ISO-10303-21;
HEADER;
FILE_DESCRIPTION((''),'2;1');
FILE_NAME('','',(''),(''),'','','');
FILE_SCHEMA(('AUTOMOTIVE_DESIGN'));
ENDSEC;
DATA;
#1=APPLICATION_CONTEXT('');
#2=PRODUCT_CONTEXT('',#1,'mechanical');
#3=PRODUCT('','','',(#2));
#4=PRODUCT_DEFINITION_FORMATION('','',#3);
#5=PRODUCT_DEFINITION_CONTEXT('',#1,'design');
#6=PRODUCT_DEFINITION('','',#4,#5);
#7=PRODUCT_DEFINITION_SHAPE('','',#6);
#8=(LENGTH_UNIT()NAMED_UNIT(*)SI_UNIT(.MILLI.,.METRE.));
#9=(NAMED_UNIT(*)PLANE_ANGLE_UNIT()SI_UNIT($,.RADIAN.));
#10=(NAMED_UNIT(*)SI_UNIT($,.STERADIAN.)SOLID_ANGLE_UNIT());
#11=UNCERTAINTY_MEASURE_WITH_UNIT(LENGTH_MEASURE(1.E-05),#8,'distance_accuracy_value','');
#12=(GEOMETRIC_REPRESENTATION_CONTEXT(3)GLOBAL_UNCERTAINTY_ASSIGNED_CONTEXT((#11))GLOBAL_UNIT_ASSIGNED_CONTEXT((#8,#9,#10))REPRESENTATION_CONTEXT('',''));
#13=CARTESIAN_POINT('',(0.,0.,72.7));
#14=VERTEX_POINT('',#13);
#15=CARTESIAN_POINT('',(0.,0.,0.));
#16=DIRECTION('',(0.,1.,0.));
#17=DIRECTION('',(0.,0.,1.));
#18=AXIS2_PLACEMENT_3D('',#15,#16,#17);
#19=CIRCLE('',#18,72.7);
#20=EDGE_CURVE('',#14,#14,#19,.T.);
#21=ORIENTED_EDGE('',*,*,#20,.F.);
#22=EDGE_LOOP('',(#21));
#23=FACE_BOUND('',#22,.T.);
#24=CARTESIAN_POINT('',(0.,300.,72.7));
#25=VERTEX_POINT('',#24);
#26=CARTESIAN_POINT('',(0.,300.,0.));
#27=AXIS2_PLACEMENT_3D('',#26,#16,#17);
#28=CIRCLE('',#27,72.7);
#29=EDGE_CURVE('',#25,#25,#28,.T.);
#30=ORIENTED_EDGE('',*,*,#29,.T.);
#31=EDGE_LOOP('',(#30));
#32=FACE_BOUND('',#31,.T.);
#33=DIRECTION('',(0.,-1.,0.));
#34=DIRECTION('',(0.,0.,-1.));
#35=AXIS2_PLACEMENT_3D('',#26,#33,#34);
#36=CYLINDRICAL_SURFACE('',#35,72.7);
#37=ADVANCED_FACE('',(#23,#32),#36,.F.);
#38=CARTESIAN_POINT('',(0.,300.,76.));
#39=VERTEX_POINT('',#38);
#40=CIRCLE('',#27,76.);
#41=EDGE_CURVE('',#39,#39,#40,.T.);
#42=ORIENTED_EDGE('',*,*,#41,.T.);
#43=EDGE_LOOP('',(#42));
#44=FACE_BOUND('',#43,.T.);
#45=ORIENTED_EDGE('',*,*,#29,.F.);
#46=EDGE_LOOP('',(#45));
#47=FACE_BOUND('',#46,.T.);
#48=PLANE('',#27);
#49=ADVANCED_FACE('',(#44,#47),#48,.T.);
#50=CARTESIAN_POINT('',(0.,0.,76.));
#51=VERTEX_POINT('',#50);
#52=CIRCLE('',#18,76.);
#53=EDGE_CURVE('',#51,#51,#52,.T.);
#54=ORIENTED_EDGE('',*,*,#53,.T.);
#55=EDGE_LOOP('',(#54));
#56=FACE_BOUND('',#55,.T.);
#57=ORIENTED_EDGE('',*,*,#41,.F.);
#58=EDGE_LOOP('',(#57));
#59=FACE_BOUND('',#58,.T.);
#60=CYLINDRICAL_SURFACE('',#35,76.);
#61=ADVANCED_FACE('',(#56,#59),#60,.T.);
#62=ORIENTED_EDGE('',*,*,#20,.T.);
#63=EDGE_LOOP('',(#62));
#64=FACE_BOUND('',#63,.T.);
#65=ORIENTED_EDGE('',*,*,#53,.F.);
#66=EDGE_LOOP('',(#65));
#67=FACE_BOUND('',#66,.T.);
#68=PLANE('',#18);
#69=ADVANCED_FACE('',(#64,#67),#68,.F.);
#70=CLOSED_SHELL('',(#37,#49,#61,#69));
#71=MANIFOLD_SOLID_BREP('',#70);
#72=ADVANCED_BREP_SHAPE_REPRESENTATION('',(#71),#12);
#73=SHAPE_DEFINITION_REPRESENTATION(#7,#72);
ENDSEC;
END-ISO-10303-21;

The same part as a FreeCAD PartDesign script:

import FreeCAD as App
import Part
import Sketcher

V = App.Vector
Q = App.Units.Quantity

doc = App.newDocument("Part")
params = doc.addObject("Spreadsheet::Sheet", "Params")
for row, (alias, value) in enumerate([
    ("sketch1_diameter", "152 mm"),
    ("sketch1_diameter2", "145.4 mm"),
    ("pad1_length", "300 mm"),
], start=1):
    params.set(f"A{row}", alias)
    params.set(f"B{row}", "=" + value)
    params.setAlias(f"B{row}", alias)

body = doc.addObject("PartDesign::Body", "Body")

sketch1 = body.newObject("Sketcher::SketchObject", "Sketch")
sketch1.AttachmentSupport = (doc.getObject("XZ_Plane"), [""])
sketch1.MapMode = "FlatFace"
sketch1.addGeometry(Part.Circle(V(0, 0, 0), V(0, 0, 1), 76), False)
sketch1.addGeometry(Part.Circle(V(0, 0, 0), V(0, 0, 1), 73), False)
sketch1.addConstraint(Sketcher.Constraint("Coincident", 0, 3, -1, 1))
sketch1.addConstraint(Sketcher.Constraint("Coincident", 1, 3, -1, 1))
sketch1.addConstraint(Sketcher.Constraint("Diameter", 0, Q("152 mm")))
sketch1.addConstraint(Sketcher.Constraint("Diameter", 1, Q("145.4 mm")))
sketch1.setExpression("Constraints[2]", "Params.sketch1_diameter")
sketch1.setExpression("Constraints[3]", "Params.sketch1_diameter2")
pad1 = body.newObject("PartDesign::Pad", "Pad")
pad1.Profile = sketch1
pad1.setExpression("Length", "Params.pad1_length")
pad1.Reversed = True

doc.recompute()
